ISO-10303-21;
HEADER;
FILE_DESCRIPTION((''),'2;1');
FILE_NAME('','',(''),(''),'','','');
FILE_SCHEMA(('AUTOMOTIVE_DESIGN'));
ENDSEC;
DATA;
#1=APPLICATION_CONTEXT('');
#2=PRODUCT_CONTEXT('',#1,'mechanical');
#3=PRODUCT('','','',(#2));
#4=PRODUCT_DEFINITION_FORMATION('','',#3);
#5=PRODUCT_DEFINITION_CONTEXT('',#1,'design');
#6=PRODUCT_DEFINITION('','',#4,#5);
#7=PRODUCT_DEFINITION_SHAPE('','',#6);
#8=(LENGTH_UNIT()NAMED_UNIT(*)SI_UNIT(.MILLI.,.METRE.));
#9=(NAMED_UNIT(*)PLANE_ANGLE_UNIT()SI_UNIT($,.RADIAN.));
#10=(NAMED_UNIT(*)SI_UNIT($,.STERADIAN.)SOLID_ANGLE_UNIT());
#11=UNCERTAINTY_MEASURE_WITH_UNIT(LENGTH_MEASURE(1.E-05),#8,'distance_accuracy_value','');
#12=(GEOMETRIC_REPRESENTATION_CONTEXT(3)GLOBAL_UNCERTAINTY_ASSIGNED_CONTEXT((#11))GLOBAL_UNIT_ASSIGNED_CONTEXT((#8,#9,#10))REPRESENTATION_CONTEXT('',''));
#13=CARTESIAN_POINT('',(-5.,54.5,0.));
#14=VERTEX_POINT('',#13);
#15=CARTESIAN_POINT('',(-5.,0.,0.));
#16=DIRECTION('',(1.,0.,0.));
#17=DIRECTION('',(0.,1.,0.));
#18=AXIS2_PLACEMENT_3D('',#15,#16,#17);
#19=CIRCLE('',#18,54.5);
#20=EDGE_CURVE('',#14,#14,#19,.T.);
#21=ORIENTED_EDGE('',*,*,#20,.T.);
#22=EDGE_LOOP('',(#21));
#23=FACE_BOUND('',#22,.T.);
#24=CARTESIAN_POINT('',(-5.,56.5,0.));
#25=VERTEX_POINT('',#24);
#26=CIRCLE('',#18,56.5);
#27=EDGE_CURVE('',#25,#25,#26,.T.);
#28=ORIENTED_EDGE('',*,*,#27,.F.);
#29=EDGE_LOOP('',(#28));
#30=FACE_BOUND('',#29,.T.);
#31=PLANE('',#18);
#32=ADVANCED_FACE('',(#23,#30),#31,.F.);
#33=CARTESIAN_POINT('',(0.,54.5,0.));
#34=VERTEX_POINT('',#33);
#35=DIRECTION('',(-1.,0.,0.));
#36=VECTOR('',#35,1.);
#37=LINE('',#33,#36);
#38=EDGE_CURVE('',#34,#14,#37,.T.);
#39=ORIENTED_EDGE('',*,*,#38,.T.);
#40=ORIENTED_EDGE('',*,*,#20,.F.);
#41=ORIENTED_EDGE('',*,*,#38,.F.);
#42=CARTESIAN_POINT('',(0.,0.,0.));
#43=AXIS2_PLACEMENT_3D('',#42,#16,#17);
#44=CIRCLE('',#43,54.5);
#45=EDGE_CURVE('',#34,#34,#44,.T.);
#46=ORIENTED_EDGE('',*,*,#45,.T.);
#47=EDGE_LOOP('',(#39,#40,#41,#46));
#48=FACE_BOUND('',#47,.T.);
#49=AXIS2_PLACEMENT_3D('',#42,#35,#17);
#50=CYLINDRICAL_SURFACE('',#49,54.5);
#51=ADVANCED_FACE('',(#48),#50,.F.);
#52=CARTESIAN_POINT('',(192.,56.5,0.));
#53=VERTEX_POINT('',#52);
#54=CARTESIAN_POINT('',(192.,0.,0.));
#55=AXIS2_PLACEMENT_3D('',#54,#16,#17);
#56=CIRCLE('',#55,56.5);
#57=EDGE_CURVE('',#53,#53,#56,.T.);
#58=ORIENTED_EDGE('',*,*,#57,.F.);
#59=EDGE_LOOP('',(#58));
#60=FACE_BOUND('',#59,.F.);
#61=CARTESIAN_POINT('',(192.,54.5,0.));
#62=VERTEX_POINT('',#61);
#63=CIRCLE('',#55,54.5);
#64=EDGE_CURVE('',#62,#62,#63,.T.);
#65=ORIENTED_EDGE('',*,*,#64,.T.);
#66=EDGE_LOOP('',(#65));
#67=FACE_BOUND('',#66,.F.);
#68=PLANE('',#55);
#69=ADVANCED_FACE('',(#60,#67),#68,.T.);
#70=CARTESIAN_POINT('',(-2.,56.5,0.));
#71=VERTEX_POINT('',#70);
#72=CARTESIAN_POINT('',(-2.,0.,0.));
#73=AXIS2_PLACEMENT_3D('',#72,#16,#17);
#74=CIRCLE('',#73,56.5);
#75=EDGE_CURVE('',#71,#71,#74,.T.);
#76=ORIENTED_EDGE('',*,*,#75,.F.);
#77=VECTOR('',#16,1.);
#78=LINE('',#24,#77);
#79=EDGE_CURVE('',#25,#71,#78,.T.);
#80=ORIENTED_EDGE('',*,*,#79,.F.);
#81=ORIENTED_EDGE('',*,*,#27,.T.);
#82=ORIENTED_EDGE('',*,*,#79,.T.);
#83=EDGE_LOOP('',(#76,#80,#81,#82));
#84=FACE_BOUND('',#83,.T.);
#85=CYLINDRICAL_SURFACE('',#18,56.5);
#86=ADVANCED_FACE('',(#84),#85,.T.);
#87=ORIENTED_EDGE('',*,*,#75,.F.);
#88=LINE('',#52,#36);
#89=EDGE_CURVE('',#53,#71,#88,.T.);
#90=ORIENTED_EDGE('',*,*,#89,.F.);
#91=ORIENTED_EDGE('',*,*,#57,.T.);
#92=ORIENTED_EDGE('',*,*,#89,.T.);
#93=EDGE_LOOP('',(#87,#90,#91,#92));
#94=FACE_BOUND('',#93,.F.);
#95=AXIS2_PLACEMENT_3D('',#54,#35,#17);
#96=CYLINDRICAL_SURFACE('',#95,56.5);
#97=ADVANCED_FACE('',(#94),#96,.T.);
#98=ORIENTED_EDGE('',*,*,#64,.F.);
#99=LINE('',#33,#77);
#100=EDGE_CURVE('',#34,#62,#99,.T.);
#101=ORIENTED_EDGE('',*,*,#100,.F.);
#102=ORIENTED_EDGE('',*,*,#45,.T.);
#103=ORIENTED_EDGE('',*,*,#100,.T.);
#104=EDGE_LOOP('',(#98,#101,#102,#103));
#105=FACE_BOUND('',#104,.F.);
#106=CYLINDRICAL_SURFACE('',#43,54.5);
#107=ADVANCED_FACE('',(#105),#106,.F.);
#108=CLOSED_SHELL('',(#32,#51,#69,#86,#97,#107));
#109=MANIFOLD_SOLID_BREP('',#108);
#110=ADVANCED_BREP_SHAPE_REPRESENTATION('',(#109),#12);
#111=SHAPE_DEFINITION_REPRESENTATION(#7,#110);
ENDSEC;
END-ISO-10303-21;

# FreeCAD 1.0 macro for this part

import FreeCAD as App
import Part
import Sketcher
from FreeCAD import Vector
Q = App.Units.Quantity


def add_polygon(sketch, points):
    """Adds a closed chain of lines whose ends are joined by coincident constraints."""
    first, n = sketch.GeometryCount, len(points)
    for a, b in zip(points, points[1:] + points[:1]):
        sketch.addGeometry(Part.LineSegment(App.Vector(*a, 0), App.Vector(*b, 0)), False)
    for i in range(n):
        sketch.addConstraint(Sketcher.Constraint("Coincident", first + i, 2, first + (i + 1) % n, 1))

doc = App.newDocument("Part")
body = doc.addObject("PartDesign::Body", "Body")

# Sketch on XY plane
sketch1 = body.newObject("Sketcher::SketchObject", "Sketch")
sketch1.AttachmentSupport = (doc.getObject("XY_Plane"), [""])
sketch1.MapMode = "FlatFace"
add_polygon(sketch1, [(-5, 54.5), (192, 54.5), (192, 56.5), (-5, 56.5)])  # lines 0-3
sketch1.addConstraint([
    Sketcher.Constraint("Horizontal", 0),
    Sketcher.Constraint("Vertical", 1),
    Sketcher.Constraint("Horizontal", 2),
    Sketcher.Constraint("Vertical", 3),
    Sketcher.Constraint("DistanceY", 1, 1, 1, 2, Q("2 mm")),
    Sketcher.Constraint("DistanceX", -1, 1, 0, 2, Q("192 mm")),
    Sketcher.Constraint("DistanceX", 2, 2, -1, 1, Q("5 mm")),
    Sketcher.Constraint("DistanceY", -1, 1, 0, 2, Q("54.5 mm")),
])
revolution = body.newObject("PartDesign::Revolution", "Revolution")
revolution.Profile = sketch1
revolution.ReferenceAxis = (sketch1, ["H_Axis"])
revolution.Angle = 360

doc.recompute()
